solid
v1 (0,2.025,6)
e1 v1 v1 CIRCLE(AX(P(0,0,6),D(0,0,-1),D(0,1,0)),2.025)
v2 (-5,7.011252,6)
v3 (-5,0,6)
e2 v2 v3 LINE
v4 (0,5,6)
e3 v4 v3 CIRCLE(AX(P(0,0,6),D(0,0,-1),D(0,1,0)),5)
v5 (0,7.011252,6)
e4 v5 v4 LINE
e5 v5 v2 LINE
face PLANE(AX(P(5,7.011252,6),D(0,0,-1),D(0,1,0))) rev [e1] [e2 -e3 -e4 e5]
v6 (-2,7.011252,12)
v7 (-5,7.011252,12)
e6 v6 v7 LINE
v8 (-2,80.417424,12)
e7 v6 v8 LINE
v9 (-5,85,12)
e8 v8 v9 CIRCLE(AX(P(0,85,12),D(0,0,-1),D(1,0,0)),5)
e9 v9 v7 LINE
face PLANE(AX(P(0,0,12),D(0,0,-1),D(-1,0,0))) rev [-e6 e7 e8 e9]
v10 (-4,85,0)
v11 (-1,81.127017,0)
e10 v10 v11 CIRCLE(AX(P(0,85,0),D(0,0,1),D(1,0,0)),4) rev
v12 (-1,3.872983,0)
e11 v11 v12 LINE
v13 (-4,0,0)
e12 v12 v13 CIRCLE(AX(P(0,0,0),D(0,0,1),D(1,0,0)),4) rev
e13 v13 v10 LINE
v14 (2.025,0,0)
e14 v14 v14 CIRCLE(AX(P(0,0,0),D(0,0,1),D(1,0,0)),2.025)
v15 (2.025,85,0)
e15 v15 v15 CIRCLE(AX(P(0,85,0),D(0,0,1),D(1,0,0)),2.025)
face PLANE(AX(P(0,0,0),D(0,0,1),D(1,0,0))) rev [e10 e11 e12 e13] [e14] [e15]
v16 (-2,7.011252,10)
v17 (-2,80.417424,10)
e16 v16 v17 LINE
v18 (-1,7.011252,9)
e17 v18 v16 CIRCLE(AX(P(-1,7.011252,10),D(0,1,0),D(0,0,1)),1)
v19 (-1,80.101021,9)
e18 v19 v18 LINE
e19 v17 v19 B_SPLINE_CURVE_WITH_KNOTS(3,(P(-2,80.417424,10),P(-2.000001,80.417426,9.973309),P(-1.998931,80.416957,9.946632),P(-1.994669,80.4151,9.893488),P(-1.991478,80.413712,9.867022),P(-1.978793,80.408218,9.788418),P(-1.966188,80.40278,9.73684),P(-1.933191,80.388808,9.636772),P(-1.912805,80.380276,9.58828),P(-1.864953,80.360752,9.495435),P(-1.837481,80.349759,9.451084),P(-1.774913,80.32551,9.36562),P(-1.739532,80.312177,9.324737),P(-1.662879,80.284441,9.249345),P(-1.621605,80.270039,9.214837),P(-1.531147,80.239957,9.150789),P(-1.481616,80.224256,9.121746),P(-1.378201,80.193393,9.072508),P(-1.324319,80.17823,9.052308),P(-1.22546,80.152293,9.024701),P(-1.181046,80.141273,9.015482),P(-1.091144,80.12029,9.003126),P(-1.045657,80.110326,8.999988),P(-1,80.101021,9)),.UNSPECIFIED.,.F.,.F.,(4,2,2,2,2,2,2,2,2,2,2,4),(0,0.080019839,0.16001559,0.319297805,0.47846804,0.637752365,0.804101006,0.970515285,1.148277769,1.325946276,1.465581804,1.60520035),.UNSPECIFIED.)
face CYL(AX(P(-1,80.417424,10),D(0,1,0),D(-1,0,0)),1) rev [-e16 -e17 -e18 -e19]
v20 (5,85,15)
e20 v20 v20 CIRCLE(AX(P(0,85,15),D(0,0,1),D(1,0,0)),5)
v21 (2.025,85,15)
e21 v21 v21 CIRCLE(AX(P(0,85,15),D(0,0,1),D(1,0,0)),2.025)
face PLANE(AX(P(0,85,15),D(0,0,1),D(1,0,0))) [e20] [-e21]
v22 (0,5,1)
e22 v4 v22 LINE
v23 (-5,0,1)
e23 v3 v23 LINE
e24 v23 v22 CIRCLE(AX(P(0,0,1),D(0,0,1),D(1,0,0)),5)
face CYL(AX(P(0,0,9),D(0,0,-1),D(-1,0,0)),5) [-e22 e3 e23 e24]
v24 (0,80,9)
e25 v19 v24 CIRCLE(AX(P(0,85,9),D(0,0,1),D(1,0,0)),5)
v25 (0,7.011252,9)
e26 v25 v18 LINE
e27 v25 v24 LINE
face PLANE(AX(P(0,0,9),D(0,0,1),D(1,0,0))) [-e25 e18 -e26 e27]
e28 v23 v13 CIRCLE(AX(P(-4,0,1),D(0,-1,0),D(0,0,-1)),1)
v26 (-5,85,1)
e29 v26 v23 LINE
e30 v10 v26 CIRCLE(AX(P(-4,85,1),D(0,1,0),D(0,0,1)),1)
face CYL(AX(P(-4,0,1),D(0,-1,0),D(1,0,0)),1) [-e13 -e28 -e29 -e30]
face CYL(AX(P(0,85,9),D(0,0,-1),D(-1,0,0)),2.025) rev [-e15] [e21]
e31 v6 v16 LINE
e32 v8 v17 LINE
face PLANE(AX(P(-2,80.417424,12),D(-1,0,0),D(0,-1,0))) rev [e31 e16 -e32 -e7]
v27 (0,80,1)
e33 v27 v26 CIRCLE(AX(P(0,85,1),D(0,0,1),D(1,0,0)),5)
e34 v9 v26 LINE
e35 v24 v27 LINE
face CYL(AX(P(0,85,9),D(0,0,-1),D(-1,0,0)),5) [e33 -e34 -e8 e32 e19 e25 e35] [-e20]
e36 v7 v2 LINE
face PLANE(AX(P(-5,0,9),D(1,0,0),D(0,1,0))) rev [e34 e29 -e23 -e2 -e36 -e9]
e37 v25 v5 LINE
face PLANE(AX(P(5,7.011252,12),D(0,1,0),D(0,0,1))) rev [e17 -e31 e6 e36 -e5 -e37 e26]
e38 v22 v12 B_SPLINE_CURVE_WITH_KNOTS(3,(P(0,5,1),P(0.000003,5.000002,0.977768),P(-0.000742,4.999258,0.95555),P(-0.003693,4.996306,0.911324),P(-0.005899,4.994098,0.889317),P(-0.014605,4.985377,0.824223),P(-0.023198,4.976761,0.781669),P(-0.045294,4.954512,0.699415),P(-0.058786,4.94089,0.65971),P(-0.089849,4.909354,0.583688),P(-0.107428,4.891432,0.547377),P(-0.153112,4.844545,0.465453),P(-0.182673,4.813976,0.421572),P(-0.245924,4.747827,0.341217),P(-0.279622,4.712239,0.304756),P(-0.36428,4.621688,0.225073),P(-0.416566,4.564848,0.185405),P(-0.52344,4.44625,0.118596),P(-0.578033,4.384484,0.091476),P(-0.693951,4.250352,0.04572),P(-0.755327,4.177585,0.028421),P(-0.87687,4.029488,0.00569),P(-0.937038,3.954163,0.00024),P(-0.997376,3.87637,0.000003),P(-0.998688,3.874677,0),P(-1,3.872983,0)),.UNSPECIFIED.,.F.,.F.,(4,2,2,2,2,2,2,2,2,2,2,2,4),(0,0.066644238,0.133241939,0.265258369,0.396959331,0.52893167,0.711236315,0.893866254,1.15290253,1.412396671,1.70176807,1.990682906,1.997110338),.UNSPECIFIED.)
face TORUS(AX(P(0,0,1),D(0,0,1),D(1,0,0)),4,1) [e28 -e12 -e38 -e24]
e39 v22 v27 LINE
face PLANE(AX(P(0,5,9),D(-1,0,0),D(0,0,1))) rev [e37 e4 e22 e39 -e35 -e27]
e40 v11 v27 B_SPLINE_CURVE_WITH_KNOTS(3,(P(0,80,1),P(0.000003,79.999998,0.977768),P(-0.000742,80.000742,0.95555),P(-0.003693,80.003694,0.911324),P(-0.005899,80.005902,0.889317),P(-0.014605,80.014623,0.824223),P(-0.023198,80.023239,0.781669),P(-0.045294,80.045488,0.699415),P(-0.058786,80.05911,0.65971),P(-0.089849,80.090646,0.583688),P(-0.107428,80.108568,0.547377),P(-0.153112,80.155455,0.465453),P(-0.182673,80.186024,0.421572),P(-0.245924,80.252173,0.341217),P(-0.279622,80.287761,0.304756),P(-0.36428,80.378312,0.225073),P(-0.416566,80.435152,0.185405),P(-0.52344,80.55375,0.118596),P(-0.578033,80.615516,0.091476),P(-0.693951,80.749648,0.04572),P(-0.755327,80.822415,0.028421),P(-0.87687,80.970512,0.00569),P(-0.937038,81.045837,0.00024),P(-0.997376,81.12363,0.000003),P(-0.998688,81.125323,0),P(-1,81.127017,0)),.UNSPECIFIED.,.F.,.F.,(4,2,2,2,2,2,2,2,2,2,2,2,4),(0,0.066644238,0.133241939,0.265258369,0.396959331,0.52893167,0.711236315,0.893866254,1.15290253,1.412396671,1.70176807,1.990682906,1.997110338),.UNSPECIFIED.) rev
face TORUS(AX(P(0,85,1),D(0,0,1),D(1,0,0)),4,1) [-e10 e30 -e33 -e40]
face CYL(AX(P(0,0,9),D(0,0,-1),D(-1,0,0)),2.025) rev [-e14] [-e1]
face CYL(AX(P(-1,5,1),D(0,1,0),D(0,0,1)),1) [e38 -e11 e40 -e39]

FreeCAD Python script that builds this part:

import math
import FreeCAD as App
import Part
import Sketcher
Q = App.Units.Quantity


def edges_at(feature, points):
    """Names of the edges that pass closest to the given points."""
    edges = feature.Shape.Edges
    near = lambda p: min(range(len(edges)), key=lambda i: edges[i].distToShape(Part.Vertex(*p))[0])
    return sorted({f"Edge{near(p) + 1}" for p in points})


def add_polygon(sketch, points):
    """Adds a closed chain of lines whose ends are joined by coincident constraints."""
    first, n = sketch.GeometryCount, len(points)
    for a, b in zip(points, points[1:] + points[:1]):
        sketch.addGeometry(Part.LineSegment(App.Vector(*a, 0), App.Vector(*b, 0)), False)
    for i in range(n):
        sketch.addConstraint(Sketcher.Constraint("Coincident", first + i, 2, first + (i + 1) % n, 1))

doc = App.newDocument("Part")
body = doc.addObject("PartDesign::Body", "Body")

# Sketch on XY plane
sketch1 = doc.addObject("Sketcher::SketchObject", "Sketch")
body.addObject(sketch1)
sketch1.AttachmentSupport = (doc.XY_Plane, [""])
sketch1.MapMode = "FlatFace"
sketch1.addGeometry(Part.LineSegment(App.Vector(-5, 85, 0), App.Vector(-5, 0, 0)), False)
sketch1.addGeometry(Part.ArcOfCircle(Part.Circle(App.Vector(0, 0, 0), App.Vector(0, 0, 1), 5), math.radians(180), math.radians(450)), False)
sketch1.addGeometry(Part.LineSegment(App.Vector(0, 5, 0), App.Vector(0, 80, 0)), False)
sketch1.addGeometry(Part.ArcOfCircle(Part.Circle(App.Vector(0, 85, 0), App.Vector(0, 0, 1), 5), math.radians(-90), math.radians(180)), False)
sketch1.addGeometry(Part.Circle(App.Vector(0, 0, 0), App.Vector(0, 0, 1), 2), False)
sketch1.addGeometry(Part.Circle(App.Vector(0, 85, 0), App.Vector(0, 0, 1), 2), False)
sketch1.addConstraint(Sketcher.Constraint("Tangent", 0, 2, 1, 1))
sketch1.addConstraint(Sketcher.Constraint("Coincident", 1, 2, 2, 1))
sketch1.addConstraint(Sketcher.Constraint("Coincident", 2, 2, 3, 1))
sketch1.addConstraint(Sketcher.Constraint("Tangent", 3, 2, 0, 1))
sketch1.addConstraint(Sketcher.Constraint("Vertical", 0))
sketch1.addConstraint(Sketcher.Constraint("Vertical", 2))
sketch1.addConstraint(Sketcher.Constraint("Coincident", 1, 3, -1, 1))
sketch1.addConstraint(Sketcher.Constraint("Coincident", 4, 3, -1, 1))
sketch1.addConstraint(Sketcher.Constraint("Coincident", 5, 3, 3, 3))
sketch1.addConstraint(Sketcher.Constraint("Equal", 1, 3))
sketch1.addConstraint(Sketcher.Constraint("Equal", 4, 5))
sketch1.addConstraint(Sketcher.Constraint("PointOnObject", 1, 2, -2))
sketch1.addConstraint(Sketcher.Constraint("Radius", 1, Q("5 mm")))
sketch1.addConstraint(Sketcher.Constraint("Diameter", 4, Q("4.05 mm")))
sketch1.addConstraint(Sketcher.Constraint("DistanceY", 0, 2, 0, 1, Q("85 mm")))
pad1 = doc.addObject("PartDesign::Pad", "Pad")
body.addObject(pad1)
pad1.Profile = sketch1
pad1.Length = 9

# Sketch on XY plane
sketch2 = doc.addObject("Sketcher::SketchObject", "Sketch001")
body.addObject(sketch2)
sketch2.AttachmentSupport = (doc.XY_Plane, [""])
sketch2.MapMode = "FlatFace"
sketch2.AttachmentOffset = App.Placement(App.Vector(0, 0, 9), App.Rotation())
sketch2.addGeometry(Part.Circle(App.Vector(0, 85, 0), App.Vector(0, 0, 1), 5), False)
sketch2.addGeometry(Part.Circle(App.Vector(0, 85, 0), App.Vector(0, 0, 1), 2), False)
sketch2.addConstraint(Sketcher.Constraint("Coincident", 1, 3, 0, 3))
sketch2.addConstraint(Sketcher.Constraint("PointOnObject", 0, 3, -2))
sketch2.addConstraint(Sketcher.Constraint("Diameter", 0, Q("10 mm")))
sketch2.addConstraint(Sketcher.Constraint("Diameter", 1, Q("4.05 mm")))
sketch2.addConstraint(Sketcher.Constraint("DistanceY", -1, 1, 0, 3, Q("85 mm")))
pad2 = doc.addObject("PartDesign::Pad", "Pad001")
body.addObject(pad2)
pad2.Profile = sketch2
pad2.Length = 6

# Sketch on XY plane
sketch3 = doc.addObject("Sketcher::SketchObject", "Sketch002")
body.addObject(sketch3)
sketch3.AttachmentSupport = (doc.XY_Plane, [""])
sketch3.MapMode = "FlatFace"
sketch3.AttachmentOffset = App.Placement(App.Vector(0, 0, 9), App.Rotation())
sketch3.addGeometry(Part.LineSegment(App.Vector(-5, 85, 0), App.Vector(-5, 0, 0)), False)
sketch3.addGeometry(Part.ArcOfCircle(Part.Circle(App.Vector(0, 0, 0), App.Vector(0, 0, 1), 5), math.radians(180), math.radians(450)), False)
sketch3.addGeometry(Part.LineSegment(App.Vector(0, 5, 0), App.Vector(-2, 5, 0)), False)
sketch3.addGeometry(Part.LineSegment(App.Vector(-2, 5, 0), App.Vector(-2, 80.4, 0)), False)
sketch3.addGeometry(Part.ArcOfCircle(Part.Circle(App.Vector(0, 85, 0), App.Vector(0, 0, 1), 5), math.radians(180), math.radians(246)), False)
sketch3.addGeometry(Part.Circle(App.Vector(0, 0, 0), App.Vector(0, 0, 1), 2), False)
sketch3.addConstraint(Sketcher.Constraint("Tangent", 0, 2, 1, 1))
sketch3.addConstraint(Sketcher.Constraint("Tangent", 1, 2, 2, 1))
sketch3.addConstraint(Sketcher.Constraint("Coincident", 2, 2, 3, 1))
sketch3.addConstraint(Sketcher.Constraint("Coincident", 3, 2, 4, 2))
sketch3.addConstraint(Sketcher.Constraint("Tangent", 4, 1, 0, 1))
sketch3.addConstraint(Sketcher.Constraint("Vertical", 0))
sketch3.addConstraint(Sketcher.Constraint("Horizontal", 2))
sketch3.addConstraint(Sketcher.Constraint("Vertical", 3))
sketch3.addConstraint(Sketcher.Constraint("Coincident", 1, 3, -1, 1))
sketch3.addConstraint(Sketcher.Constraint("Coincident", 5, 3, -1, 1))
sketch3.addConstraint(Sketcher.Constraint("Equal", 1, 4))
sketch3.addConstraint(Sketcher.Constraint("Radius", 1, Q("5 mm")))
sketch3.addConstraint(Sketcher.Constraint("Diameter", 5, Q("4.05 mm")))
sketch3.addConstraint(Sketcher.Constraint("DistanceX", 2, 2, 2, 1, Q("2 mm")))
sketch3.addConstraint(Sketcher.Constraint("DistanceY", 0, 2, 0, 1, Q("85 mm")))
pad3 = doc.addObject("PartDesign::Pad", "Pad002")
body.addObject(pad3)
pad3.Profile = sketch3
pad3.Length = 3

# Sketch on YZ plane
sketch4 = doc.addObject("Sketcher::SketchObject", "Sketch003")
body.addObject(sketch4)
sketch4.AttachmentSupport = (doc.YZ_Plane, [""])
sketch4.MapMode = "FlatFace"
sketch4.AttachmentOffset = App.Placement(App.Vector(0, 0, -5), App.Rotation())
add_polygon(sketch4, [(7, 12), (7, 6), (-5, 6), (-5, 12)])  # lines 0-3
sketch4.addConstraint(Sketcher.Constraint("Vertical", 0))
sketch4.addConstraint(Sketcher.Constraint("Horizontal", 1))
sketch4.addConstraint(Sketcher.Constraint("Vertical", 2))
sketch4.addConstraint(Sketcher.Constraint("Horizontal", 3))
sketch4.addConstraint(Sketcher.Constraint("DistanceY", 0, 2, 0, 1, Q("6 mm")))
sketch4.addConstraint(Sketcher.Constraint("DistanceY", -1, 1, 0, 2, Q("6 mm")))
sketch4.addConstraint(Sketcher.Constraint("DistanceX", 1, 2, -1, 1, Q("5 mm")))
sketch4.addConstraint(Sketcher.Constraint("DistanceX", 1, 2, 1, 1, Q("12.011252 mm")))
pocket1 = doc.addObject("PartDesign::Pocket", "Pocket")
body.addObject(pocket1)
pocket1.Profile = sketch4
pocket1.Length = 10
pocket1.Reversed = True
doc.recompute()

fillet = doc.addObject("PartDesign::Fillet", "Fillet")
body.addObject(fillet)
fillet.Base = (pocket1, edges_at(pocket1, [
    (-5, 42.5, 0),
    (3.536, 88.536, 0),
    (0, 42.5, 0),
    (3.536, -3.536, 0),
]))
fillet.Radius = 1
doc.recompute()

fillet2 = doc.addObject("PartDesign::Fillet", "Fillet001")
body.addObject(fillet2)
fillet2.Base = (fillet, edges_at(fillet, [(-2, 43.714, 9)]))
fillet2.Radius = 1

doc.recompute()
